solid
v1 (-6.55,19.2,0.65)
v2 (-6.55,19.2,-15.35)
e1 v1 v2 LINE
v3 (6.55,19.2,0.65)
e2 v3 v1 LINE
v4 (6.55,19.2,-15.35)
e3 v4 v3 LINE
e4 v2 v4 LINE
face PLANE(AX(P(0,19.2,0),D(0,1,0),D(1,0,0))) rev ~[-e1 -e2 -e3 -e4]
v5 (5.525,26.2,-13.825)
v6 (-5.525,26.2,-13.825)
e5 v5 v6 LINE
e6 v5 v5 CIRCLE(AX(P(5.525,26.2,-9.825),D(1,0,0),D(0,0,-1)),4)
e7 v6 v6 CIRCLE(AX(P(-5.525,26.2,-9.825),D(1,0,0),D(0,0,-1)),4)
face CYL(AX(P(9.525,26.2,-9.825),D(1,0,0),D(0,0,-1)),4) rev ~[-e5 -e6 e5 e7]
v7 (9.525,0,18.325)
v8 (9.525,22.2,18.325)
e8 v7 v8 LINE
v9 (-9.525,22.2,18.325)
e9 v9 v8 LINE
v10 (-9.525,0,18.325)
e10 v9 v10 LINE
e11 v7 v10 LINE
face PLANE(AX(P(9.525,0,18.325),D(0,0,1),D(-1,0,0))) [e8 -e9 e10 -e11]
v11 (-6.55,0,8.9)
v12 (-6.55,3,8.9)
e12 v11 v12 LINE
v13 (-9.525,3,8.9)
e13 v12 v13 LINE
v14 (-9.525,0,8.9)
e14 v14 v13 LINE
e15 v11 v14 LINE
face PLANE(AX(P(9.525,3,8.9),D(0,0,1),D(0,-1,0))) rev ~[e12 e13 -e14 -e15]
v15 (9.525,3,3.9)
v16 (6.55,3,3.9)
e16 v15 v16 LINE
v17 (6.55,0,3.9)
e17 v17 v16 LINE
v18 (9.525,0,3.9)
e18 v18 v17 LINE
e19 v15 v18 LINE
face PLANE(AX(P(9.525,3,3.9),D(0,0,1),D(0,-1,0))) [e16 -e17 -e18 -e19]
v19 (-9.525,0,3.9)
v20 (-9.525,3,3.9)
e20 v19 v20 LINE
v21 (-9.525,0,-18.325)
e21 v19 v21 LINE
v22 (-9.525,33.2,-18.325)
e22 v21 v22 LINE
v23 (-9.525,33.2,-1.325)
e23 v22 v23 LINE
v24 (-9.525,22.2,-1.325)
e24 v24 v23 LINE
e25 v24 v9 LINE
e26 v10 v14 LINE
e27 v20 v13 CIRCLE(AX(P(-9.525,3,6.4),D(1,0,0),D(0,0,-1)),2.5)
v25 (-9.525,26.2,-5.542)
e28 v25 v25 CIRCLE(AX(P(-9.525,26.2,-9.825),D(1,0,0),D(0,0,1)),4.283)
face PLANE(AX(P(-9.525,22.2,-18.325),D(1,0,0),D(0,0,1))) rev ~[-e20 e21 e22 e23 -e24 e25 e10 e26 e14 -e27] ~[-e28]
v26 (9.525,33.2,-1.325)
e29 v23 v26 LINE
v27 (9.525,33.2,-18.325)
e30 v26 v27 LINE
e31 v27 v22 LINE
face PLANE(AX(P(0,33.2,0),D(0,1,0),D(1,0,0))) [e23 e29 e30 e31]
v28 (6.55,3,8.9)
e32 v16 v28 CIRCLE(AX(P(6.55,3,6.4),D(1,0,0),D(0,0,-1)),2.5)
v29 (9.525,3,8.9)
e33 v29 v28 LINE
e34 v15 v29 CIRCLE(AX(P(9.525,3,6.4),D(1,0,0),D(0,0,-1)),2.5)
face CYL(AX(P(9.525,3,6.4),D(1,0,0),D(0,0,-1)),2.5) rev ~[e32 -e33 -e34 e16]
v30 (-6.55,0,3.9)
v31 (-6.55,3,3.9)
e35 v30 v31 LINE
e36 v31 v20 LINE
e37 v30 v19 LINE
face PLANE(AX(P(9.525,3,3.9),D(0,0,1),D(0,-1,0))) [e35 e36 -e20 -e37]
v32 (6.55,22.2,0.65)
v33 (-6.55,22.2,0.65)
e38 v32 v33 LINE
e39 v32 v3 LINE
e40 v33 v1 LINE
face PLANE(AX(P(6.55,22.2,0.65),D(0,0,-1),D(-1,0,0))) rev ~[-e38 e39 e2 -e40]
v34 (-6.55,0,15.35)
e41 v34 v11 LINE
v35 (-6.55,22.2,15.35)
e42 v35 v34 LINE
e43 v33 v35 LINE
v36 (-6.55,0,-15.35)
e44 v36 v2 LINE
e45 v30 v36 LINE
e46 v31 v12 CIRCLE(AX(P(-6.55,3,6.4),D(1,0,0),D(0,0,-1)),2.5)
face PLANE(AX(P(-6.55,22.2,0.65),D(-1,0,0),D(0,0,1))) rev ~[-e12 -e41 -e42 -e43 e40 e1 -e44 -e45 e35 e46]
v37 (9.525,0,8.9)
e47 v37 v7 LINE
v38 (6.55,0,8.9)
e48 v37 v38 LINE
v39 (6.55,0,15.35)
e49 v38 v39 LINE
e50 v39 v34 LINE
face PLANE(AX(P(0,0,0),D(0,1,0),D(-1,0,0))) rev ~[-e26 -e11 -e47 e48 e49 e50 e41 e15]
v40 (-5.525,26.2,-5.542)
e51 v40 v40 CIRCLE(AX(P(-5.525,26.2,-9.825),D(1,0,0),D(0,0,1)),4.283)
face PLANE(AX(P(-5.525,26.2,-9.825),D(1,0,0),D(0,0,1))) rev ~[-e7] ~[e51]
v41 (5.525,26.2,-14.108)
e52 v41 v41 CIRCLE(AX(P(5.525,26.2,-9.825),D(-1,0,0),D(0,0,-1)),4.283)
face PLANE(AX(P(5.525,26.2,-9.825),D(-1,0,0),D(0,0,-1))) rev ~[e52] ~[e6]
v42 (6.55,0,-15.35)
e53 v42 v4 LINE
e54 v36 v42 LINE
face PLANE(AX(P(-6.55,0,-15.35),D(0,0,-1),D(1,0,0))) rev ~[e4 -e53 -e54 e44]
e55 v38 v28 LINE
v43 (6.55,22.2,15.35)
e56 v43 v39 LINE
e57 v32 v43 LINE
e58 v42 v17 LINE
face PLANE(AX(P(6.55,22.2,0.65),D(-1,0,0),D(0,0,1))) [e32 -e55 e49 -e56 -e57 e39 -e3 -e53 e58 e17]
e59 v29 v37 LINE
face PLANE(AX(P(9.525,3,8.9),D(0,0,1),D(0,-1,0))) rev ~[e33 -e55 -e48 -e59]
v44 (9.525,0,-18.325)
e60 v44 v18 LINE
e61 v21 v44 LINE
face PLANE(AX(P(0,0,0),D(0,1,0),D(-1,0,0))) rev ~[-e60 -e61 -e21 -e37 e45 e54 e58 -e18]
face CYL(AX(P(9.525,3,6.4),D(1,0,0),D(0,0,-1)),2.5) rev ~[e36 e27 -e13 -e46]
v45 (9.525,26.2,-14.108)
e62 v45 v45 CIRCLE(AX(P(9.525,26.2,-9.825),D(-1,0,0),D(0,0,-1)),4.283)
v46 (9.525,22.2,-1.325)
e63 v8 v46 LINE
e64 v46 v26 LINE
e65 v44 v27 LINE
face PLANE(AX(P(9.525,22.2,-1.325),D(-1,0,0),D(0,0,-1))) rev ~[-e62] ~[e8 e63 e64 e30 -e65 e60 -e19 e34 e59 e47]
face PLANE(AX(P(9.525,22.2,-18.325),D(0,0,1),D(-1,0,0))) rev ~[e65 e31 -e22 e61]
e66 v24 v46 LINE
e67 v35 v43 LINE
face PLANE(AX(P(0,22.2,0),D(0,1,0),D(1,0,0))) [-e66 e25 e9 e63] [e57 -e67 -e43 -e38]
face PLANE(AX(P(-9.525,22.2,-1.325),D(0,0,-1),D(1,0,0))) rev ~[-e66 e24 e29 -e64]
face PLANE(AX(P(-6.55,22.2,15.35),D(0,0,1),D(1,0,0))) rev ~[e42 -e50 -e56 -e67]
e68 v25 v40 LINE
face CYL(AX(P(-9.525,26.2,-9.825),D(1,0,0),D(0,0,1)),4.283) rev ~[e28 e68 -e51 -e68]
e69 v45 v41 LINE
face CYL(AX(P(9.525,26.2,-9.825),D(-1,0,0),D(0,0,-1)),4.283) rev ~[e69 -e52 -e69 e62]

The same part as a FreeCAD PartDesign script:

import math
import FreeCAD as App
import Part
import Sketcher

V = App.Vector


def add_polygon(sketch, points):
    """Adds a closed chain of lines whose ends are joined by coincident constraints."""
    first, n = sketch.GeometryCount, len(points)
    for a, b in zip(points, points[1:] + points[:1]):
        sketch.addGeometry(Part.LineSegment(App.Vector(*a, 0), App.Vector(*b, 0)), False)
    for i in range(n):
        sketch.addConstraint(Sketcher.Constraint("Coincident", first + i, 2, first + (i + 1) % n, 1))

doc = App.newDocument("Part")
body = doc.addObject("PartDesign::Body", "Body")

# Sketch on XZ plane
sketch1 = doc.addObject("Sketcher::SketchObject", "Sketch")
body.addObject(sketch1)
sketch1.AttachmentSupport = (doc.XZ_Plane, [""])
sketch1.MapMode = "FlatFace"
add_polygon(sketch1, [(-10, 18), (10, 18), (10, -18), (-10, -18)])  # lines 0-3
add_polygon(sketch1, [(7, -15), (7, 15), (-7, 15), (-7, -15)])  # lines 4-7
sketch1.addConstraint(Sketcher.Constraint("Horizontal", 0))
sketch1.addConstraint(Sketcher.Constraint("Vertical", 1))
sketch1.addConstraint(Sketcher.Constraint("Horizontal", 2))
sketch1.addConstraint(Sketcher.Constraint("Vertical", 3))
sketch1.addConstraint(Sketcher.Constraint("Vertical", 4))
sketch1.addConstraint(Sketcher.Constraint("Horizontal", 5))
sketch1.addConstraint(Sketcher.Constraint("Vertical", 6))
sketch1.addConstraint(Sketcher.Constraint("Horizontal", 7))
sketch1.addConstraint(Sketcher.Constraint("Symmetric", 0, 2, 2, 2, -1, 1))
sketch1.addConstraint(Sketcher.Constraint("Symmetric", 4, 2, 6, 2, -1, 1))
sketch1.addConstraint(Sketcher.Constraint("DistanceX", 5, 2, 5, 1, 13.1))
sketch1.addConstraint(Sketcher.Constraint("DistanceY", 4, 1, 4, 2, 30.7))
sketch1.addConstraint(Sketcher.Constraint("DistanceX", 0, 1, 0, 2, 19.05))
sketch1.addConstraint(Sketcher.Constraint("DistanceY", 1, 2, 1, 1, 36.65))
pad1 = doc.addObject("PartDesign::Pad", "Pad")
body.addObject(pad1)
pad1.Profile = sketch1
pad1.Length = 19.2
pad1.Reversed = True

# Sketch on XZ plane
sketch2 = doc.addObject("Sketcher::SketchObject", "Sketch001")
body.addObject(sketch2)
sketch2.AttachmentSupport = (doc.XZ_Plane, [""])
sketch2.MapMode = "FlatFace"
sketch2.AttachmentOffset = App.Placement(V(0, 0, -19.2), App.Rotation())
add_polygon(sketch2, [(-10, -18), (-10, 18), (10, 18), (10, -18)])  # lines 0-3
sketch2.addConstraint(Sketcher.Constraint("Vertical", 0))
sketch2.addConstraint(Sketcher.Constraint("Horizontal", 1))
sketch2.addConstraint(Sketcher.Constraint("Vertical", 2))
sketch2.addConstraint(Sketcher.Constraint("Horizontal", 3))
sketch2.addConstraint(Sketcher.Constraint("Symmetric", 0, 2, 2, 2, -1, 1))
sketch2.addConstraint(Sketcher.Constraint("DistanceX", 1, 1, 1, 2, 19.05))
sketch2.addConstraint(Sketcher.Constraint("DistanceY", 0, 1, 0, 2, 36.65))
pad2 = doc.addObject("PartDesign::Pad", "Pad001")
body.addObject(pad2)
pad2.Profile = sketch2
pad2.Length = 3
pad2.Reversed = True

# Sketch on XZ plane
sketch3 = doc.addObject("Sketcher::SketchObject", "Sketch002")
body.addObject(sketch3)
sketch3.AttachmentSupport = (doc.XZ_Plane, [""])
sketch3.MapMode = "FlatFace"
sketch3.AttachmentOffset = App.Placement(V(0, 0, -22.2), App.Rotation())
add_polygon(sketch3, [(7, 15), (7, 1), (-7, 1), (-7, 15)])  # lines 0-3
sketch3.addConstraint(Sketcher.Constraint("Vertical", 0))
sketch3.addConstraint(Sketcher.Constraint("Horizontal", 1))
sketch3.addConstraint(Sketcher.Constraint("Vertical", 2))
sketch3.addConstraint(Sketcher.Constraint("Horizontal", 3))
sketch3.addConstraint(Sketcher.Constraint("DistanceY", 0, 2, 0, 1, 14.7))
sketch3.addConstraint(Sketcher.Constraint("DistanceX", 1, 2, 1, 1, 13.1))
sketch3.addConstraint(Sketcher.Constraint("DistanceX", -1, 1, 0, 2, 6.55))
sketch3.addConstraint(Sketcher.Constraint("DistanceY", -1, 1, 0, 2, 0.65))
pocket1 = doc.addObject("PartDesign::Pocket", "Pocket")
body.addObject(pocket1)
pocket1.Profile = sketch3
pocket1.Length = 5
pocket1.Reversed = True

# Sketch on YZ plane
sketch4 = doc.addObject("Sketcher::SketchObject", "Sketch003")
body.addObject(sketch4)
sketch4.AttachmentSupport = (doc.YZ_Plane, [""])
sketch4.MapMode = "FlatFace"
sketch4.AttachmentOffset = App.Placement(V(0, 0, 9.525), App.Rotation())
sketch4.addGeometry(Part.ArcOfCircle(Part.Circle(V(3, 6.4, 0), V(0, 0, 1), 2.5), math.radians(-90), math.radians(90)), False)
sketch4.addGeometry(Part.LineSegment(V(3, 8.9, 0), V(0, 8.9, 0)), False)
sketch4.addGeometry(Part.LineSegment(V(0, 8.9, 0), V(0, 3.9, 0)), False)
sketch4.addGeometry(Part.LineSegment(V(0, 3.9, 0), V(3, 3.9, 0)), False)
sketch4.addConstraint(Sketcher.Constraint("Tangent", 0, 2, 1, 1))
sketch4.addConstraint(Sketcher.Constraint("Coincident", 1, 2, 2, 1))
sketch4.addConstraint(Sketcher.Constraint("Coincident", 2, 2, 3, 1))
sketch4.addConstraint(Sketcher.Constraint("Tangent", 3, 2, 0, 1))
sketch4.addConstraint(Sketcher.Constraint("Horizontal", 1))
sketch4.addConstraint(Sketcher.Constraint("Vertical", 2))
sketch4.addConstraint(Sketcher.Constraint("Horizontal", 3))
sketch4.addConstraint(Sketcher.Constraint("PointOnObject", 1, 2, -2))
sketch4.addConstraint(Sketcher.Constraint("Radius", 0, 2.5))
sketch4.addConstraint(Sketcher.Constraint("DistanceX", 1, 2, 1, 1, 3.0))
sketch4.addConstraint(Sketcher.Constraint("DistanceY", -1, 1, 0, 3, 6.4))
pocket2 = doc.addObject("PartDesign::Pocket", "Pocket001")
body.addObject(pocket2)
pocket2.Profile = sketch4
pocket2.Type = "ThroughAll"

# Sketch on XZ plane
sketch5 = doc.addObject("Sketcher::SketchObject", "Sketch004")
body.addObject(sketch5)
sketch5.AttachmentSupport = (doc.XZ_Plane, [""])
sketch5.MapMode = "FlatFace"
sketch5.AttachmentOffset = App.Placement(V(0, 0, -22.2), App.Rotation())
add_polygon(sketch5, [(10, -1), (10, -18), (-10, -18), (-10, -1)])  # lines 0-3
sketch5.addConstraint(Sketcher.Constraint("Vertical", 0))
sketch5.addConstraint(Sketcher.Constraint("Horizontal", 1))
sketch5.addConstraint(Sketcher.Constraint("Vertical", 2))
sketch5.addConstraint(Sketcher.Constraint("Horizontal", 3))
sketch5.addConstraint(Sketcher.Constraint("DistanceY", 0, 2, 0, 1, 17.0))
sketch5.addConstraint(Sketcher.Constraint("DistanceX", 1, 2, 1, 1, 19.05))
sketch5.addConstraint(Sketcher.Constraint("DistanceX", -1, 1, 0, 2, 9.525))
sketch5.addConstraint(Sketcher.Constraint("DistanceY", 0, 2, -1, 1, 18.325))
pad3 = doc.addObject("PartDesign::Pad", "Pad002")
body.addObject(pad3)
pad3.Profile = sketch5
pad3.Length = 11
pad3.Reversed = True

# Sketch on YZ plane
sketch6 = doc.addObject("Sketcher::SketchObject", "Sketch005")
body.addObject(sketch6)
sketch6.AttachmentSupport = (doc.YZ_Plane, [""])
sketch6.MapMode = "FlatFace"
sketch6.AttachmentOffset = App.Placement(V(0, 0, 9.525), App.Rotation())
sketch6.addGeometry(Part.Circle(V(26.2, -9.8, 0), V(0, 0, 1), 4), False)
sketch6.addConstraint(Sketcher.Constraint("Diameter", 0, 8.0))
sketch6.addConstraint(Sketcher.Constraint("DistanceX", -1, 1, 0, 3, 26.2))
sketch6.addConstraint(Sketcher.Constraint("DistanceY", 0, 3, -1, 1, 9.825))
pocket3 = doc.addObject("PartDesign::Pocket", "Pocket002")
body.addObject(pocket3)
pocket3.Profile = sketch6
pocket3.Type = "ThroughAll"

# Sketch on YZ plane
sketch7 = doc.addObject("Sketcher::SketchObject", "Sketch006")
body.addObject(sketch7)
sketch7.AttachmentSupport = (doc.YZ_Plane, [""])
sketch7.MapMode = "FlatFace"
sketch7.AttachmentOffset = App.Placement(V(0, 0, 9.525), App.Rotation())
sketch7.addGeometry(Part.Circle(V(26.2, -9.8, 0), V(0, 0, 1), 4.3), False)
sketch7.addConstraint(Sketcher.Constraint("Diameter", 0, 8.566))
sketch7.addConstraint(Sketcher.Constraint("DistanceX", -1, 1, 0, 3, 26.2))
sketch7.addConstraint(Sketcher.Constraint("DistanceY", 0, 3, -1, 1, 9.825))
doc.recompute()
hole = doc.addObject("PartDesign::Hole", "Hole")
body.addObject(hole)
hole.Profile = sketch7
hole.ThreadType = "None"
hole.Diameter = 8.566
hole.DepthType = "Dimension"
hole.Depth = 4
hole.DrillPoint = "Flat"

# Sketch on YZ plane
sketch8 = doc.addObject("Sketcher::SketchObject", "Sketch007")
body.addObject(sketch8)
sketch8.AttachmentSupport = (doc.YZ_Plane, [""])
sketch8.MapMode = "FlatFace"
sketch8.AttachmentOffset = App.Placement(V(0, 0, -9.525), App.Rotation())
sketch8.addGeometry(Part.Circle(V(26.2, -9.8, 0), V(0, 0, 1), 4.3), False)
sketch8.addConstraint(Sketcher.Constraint("Diameter", 0, 8.566))
sketch8.addConstraint(Sketcher.Constraint("DistanceX", -1, 1, 0, 3, 26.2))
sketch8.addConstraint(Sketcher.Constraint("DistanceY", 0, 3, -1, 1, 9.825))
doc.recompute()
hole2 = doc.addObject("PartDesign::Hole", "Hole001")
body.addObject(hole2)
hole2.Profile = sketch8
hole2.ThreadType = "None"
hole2.Diameter = 8.566
hole2.DepthType = "Dimension"
hole2.Depth = 4
hole2.DrillPoint = "Flat"
hole2.Reversed = True

doc.recompute()
